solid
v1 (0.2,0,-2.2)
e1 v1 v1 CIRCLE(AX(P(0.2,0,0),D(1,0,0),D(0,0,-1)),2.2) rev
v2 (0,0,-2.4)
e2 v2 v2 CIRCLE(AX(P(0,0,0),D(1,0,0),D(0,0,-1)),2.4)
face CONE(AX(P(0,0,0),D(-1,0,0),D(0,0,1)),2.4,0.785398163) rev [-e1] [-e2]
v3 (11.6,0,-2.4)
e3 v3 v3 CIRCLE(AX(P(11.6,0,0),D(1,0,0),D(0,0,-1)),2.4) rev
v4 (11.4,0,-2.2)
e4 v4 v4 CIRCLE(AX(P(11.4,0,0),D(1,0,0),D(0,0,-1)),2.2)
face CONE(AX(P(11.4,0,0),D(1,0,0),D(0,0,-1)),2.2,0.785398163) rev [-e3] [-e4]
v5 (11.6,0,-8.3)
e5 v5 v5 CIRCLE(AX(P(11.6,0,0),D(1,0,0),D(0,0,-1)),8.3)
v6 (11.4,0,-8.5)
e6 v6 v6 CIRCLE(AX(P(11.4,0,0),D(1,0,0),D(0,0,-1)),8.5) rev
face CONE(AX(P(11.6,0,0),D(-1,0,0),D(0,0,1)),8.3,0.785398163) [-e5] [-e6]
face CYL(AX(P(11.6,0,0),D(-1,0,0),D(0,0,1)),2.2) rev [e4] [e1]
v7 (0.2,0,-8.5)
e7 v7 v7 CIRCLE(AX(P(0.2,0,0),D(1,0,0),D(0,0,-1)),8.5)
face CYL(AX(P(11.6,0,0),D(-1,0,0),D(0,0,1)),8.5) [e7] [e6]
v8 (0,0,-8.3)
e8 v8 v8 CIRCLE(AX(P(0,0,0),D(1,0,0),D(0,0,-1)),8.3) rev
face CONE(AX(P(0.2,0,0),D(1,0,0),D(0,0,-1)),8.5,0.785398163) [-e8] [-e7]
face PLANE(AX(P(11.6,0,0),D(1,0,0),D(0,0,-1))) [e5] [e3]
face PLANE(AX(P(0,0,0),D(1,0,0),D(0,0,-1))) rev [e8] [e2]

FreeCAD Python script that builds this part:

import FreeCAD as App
import Part
import Sketcher
Q = App.Units.Quantity


def edges_at(feature, points):
    """Names of the edges that pass closest to the given points."""
    edges = feature.Shape.Edges
    near = lambda p: min(range(len(edges)), key=lambda i: edges[i].distToShape(Part.Vertex(*p))[0])
    return sorted({f"Edge{near(p) + 1}" for p in points})

doc = App.newDocument("Part")
body = doc.addObject("PartDesign::Body", "Body")

sketch1 = body.newObject("Sketcher::SketchObject", "Sketch")
sketch1.AttachmentSupport = (doc.getObject("YZ_Plane"), [""])
sketch1.MapMode = "FlatFace"
sketch1.addGeometry([
    Part.Circle(App.Vector(0, 0, 0), App.Vector(0, 0, 1), 8.5),
    Part.Circle(App.Vector(0, 0, 0), App.Vector(0, 0, 1), 2.2),
], False)
sketch1.addConstraint([
    Sketcher.Constraint("Coincident", 0, 3, -1, 1),
    Sketcher.Constraint("Coincident", 1, 3, -1, 1),
    Sketcher.Constraint("Diameter", 0, Q("17 mm")),
    Sketcher.Constraint("Diameter", 1, Q("4.4 mm")),
])
pad1 = body.newObject("PartDesign::Pad", "Pad")
pad1.Profile = sketch1
pad1.Length = 11.6
doc.recompute()

chamfer = body.newObject("PartDesign::Chamfer", "Chamfer")
chamfer.Base = (pad1, edges_at(pad1, [
    (0, 0, 8.5),
    (11.6, 0, 8.5),
    (0, 0, 2.2),
    (11.6, 0, 2.2),
]))
chamfer.Size = 0.2

doc.recompute()
